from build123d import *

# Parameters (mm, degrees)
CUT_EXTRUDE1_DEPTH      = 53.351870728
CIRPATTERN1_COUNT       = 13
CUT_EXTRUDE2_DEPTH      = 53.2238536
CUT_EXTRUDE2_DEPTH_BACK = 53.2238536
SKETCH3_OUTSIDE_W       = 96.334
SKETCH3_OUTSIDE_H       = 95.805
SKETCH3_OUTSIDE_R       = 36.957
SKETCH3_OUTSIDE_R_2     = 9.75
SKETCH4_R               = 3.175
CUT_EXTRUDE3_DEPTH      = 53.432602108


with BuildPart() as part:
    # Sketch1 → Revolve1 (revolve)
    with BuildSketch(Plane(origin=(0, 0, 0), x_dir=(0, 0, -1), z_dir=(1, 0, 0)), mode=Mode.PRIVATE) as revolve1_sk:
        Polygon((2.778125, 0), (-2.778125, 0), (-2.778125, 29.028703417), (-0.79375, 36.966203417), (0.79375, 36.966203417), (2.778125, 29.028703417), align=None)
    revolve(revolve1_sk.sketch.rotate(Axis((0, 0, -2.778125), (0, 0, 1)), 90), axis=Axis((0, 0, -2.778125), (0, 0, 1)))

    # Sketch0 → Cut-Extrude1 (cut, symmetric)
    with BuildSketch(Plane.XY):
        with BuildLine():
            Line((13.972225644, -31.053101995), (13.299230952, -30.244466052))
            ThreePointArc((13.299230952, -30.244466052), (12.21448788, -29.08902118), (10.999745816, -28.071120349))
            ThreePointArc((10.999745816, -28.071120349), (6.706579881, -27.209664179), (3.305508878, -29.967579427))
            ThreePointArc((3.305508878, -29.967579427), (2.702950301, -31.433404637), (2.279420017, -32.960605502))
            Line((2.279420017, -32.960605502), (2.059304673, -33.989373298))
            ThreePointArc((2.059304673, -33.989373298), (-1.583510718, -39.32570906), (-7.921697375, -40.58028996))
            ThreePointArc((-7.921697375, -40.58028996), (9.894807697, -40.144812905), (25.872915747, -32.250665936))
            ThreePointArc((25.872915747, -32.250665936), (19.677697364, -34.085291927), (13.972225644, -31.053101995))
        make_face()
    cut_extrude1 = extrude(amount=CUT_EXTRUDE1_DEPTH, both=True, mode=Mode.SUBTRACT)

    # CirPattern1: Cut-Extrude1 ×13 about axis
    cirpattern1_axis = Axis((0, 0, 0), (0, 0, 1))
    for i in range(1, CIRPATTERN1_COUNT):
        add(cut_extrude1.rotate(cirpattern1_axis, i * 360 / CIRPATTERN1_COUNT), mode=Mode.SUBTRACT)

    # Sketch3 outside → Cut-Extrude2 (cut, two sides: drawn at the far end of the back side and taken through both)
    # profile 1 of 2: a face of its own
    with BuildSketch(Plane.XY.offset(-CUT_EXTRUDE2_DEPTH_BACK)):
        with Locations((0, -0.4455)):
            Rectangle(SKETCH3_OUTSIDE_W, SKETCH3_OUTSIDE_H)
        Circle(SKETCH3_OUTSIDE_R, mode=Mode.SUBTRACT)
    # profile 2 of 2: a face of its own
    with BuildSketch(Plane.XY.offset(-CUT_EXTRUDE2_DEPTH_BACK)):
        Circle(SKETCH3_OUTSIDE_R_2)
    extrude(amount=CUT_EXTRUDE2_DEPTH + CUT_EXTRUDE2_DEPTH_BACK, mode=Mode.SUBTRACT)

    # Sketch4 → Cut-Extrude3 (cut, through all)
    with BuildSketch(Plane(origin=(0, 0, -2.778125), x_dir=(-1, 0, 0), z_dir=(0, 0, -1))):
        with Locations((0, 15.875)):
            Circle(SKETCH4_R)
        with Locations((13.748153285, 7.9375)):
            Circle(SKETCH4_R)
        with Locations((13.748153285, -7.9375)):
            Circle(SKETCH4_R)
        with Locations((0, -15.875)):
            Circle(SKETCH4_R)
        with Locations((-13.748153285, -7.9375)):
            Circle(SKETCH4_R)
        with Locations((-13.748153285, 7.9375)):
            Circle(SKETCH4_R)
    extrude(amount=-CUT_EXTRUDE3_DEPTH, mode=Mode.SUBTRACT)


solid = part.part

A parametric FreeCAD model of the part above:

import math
import FreeCAD as App
import Part
import Sketcher
Q = App.Units.Quantity


def add_polygon(sketch, points):
    """Adds a closed chain of lines whose ends are joined by coincident constraints."""
    first, n = sketch.GeometryCount, len(points)
    for a, b in zip(points, points[1:] + points[:1]):
        sketch.addGeometry(Part.LineSegment(App.Vector(*a, 0), App.Vector(*b, 0)), False)
    for i in range(n):
        sketch.addConstraint(Sketcher.Constraint("Coincident", first + i, 2, first + (i + 1) % n, 1))

doc = App.newDocument("Part")
body = doc.addObject("PartDesign::Body", "Body")

# Sketch on YZ plane
sketch1 = body.newObject("Sketcher::SketchObject", "Sketch")
sketch1.AttachmentSupport = (doc.getObject("YZ_Plane"), [""])
sketch1.MapMode = "FlatFace"
add_polygon(sketch1, [(0, 2.8), (0, -2.8), (29, -2.8), (37, -0.8), (37, 0.8), (29, 2.8)])  # lines 0-5
sketch1.addConstraint([
    Sketcher.Constraint("Vertical", 0),
    Sketcher.Constraint("Horizontal", 1),
    Sketcher.Constraint("Vertical", 3),
    Sketcher.Constraint("Horizontal", 5),
    Sketcher.Constraint("Symmetric", 0, 2, 5, 2, -1, 1),
    Sketcher.Constraint("Vertical", 1, 2, 4, 2),
    Sketcher.Constraint("Equal", 2, 4),
    Sketcher.Constraint("DistanceY", 0, 2, 0, 1, Q("0.21875 in")),
    Sketcher.Constraint("DistanceY", 3, 1, 3, 2, Q("0.0625 in")),
    Sketcher.Constraint("DistanceX", 1, 2, 2, 2, Q("0.3125 in")),
    Sketcher.Constraint("DistanceX", 1, 1, 1, 2, Q("29.028703 mm")),
])
revolution = body.newObject("PartDesign::Revolution", "Revolution")
revolution.Profile = sketch1
revolution.ReferenceAxis = (sketch1, ["V_Axis"])
revolution.Angle = 360

# Sketch on XY plane
sketch2 = body.newObject("Sketcher::SketchObject", "Sketch001")
sketch2.AttachmentSupport = (doc.getObject("XY_Plane"), [""])
sketch2.MapMode = "FlatFace"
sketch2.addGeometry([
    Part.LineSegment(App.Vector(14, -31.1, 0), App.Vector(13.3, -30.2, 0)),  # 0
    Part.ArcOfCircle(Part.Circle(App.Vector(3.1, -38.7, 0), App.Vector(0, 0, 1), 13.3), math.radians(39.77), math.radians(53.46)),  # 1
    Part.ArcOfCircle(Part.Circle(App.Vector(7.9, -32.2, 0), App.Vector(0, 0, 1), 5.1), math.radians(53), math.radians(154)),  # 2
    Part.ArcOfCircle(Part.Circle(App.Vector(15.3, -35.7, 0), App.Vector(0, 0, 1), 13.3), math.radians(154.23), math.radians(167.92)),  # 3
    Part.LineSegment(App.Vector(2.3, -33, 0), App.Vector(2.1, -34, 0)),  # 4
    Part.ArcOfCircle(Part.Circle(App.Vector(-6.3, -32.2, 0), App.Vector(0, 0, 1), 8.5), math.radians(-101), math.radians(-12)),  # 5
    Part.ArcOfCircle(Part.Circle(App.Vector(0, 0, 0), App.Vector(0, 0, 1), 41.3), math.radians(-101), math.radians(-51)),  # 6
    Part.ArcOfCircle(Part.Circle(App.Vector(20.5, -25.6, 0), App.Vector(0, 0, 1), 8.5), math.radians(-140), math.radians(-51)),  # 7
], False)
sketch2.addConstraint([
    Sketcher.Constraint("Tangent", 0, 2, 1, 1),
    Sketcher.Constraint("Tangent", 1, 2, 2, 1),
    Sketcher.Constraint("Tangent", 2, 2, 3, 1),
    Sketcher.Constraint("Tangent", 3, 2, 4, 1),
    Sketcher.Constraint("Tangent", 4, 2, 5, 2),
    Sketcher.Constraint("Tangent", 5, 1, 6, 1),
    Sketcher.Constraint("Tangent", 6, 2, 7, 2),
    Sketcher.Constraint("Tangent", 7, 1, 0, 1),
    Sketcher.Constraint("Coincident", 6, 3, -1, 1),
    Sketcher.Constraint("Equal", 1, 3),
    Sketcher.Constraint("Equal", 5, 7),
    Sketcher.Constraint("Horizontal", 2, 3, 5, 3),
    Sketcher.Constraint("Equal", 0, 4),
    Sketcher.Constraint("Radius", 1, Q("0.5225 in")),
    Sketcher.Constraint("Radius", 2, Q("0.2025 in")),
    Sketcher.Constraint("Radius", 5, Q("8.534698 mm")),
    Sketcher.Constraint("DistanceX", 5, 3, 2, 3, Q("0.56 in")),
    Sketcher.Constraint("DistanceX", -1, 1, 2, 3, Q("0.3125 in")),
    Sketcher.Constraint("Radius", 6, Q("41.34626 mm")),
    Sketcher.Constraint("DistanceY", 2, 3, 1, 2, Q("0.1627001 in")),
    Sketcher.Constraint("DistanceY", 7, 1, -1, 1, Q("31.053102 mm")),
])
pocket1 = body.newObject("PartDesign::Pocket", "Pocket")
pocket1.Profile = sketch2
pocket1.Length = 106.703741
pocket1.Midplane = True
doc.recompute()

polarpattern = body.newObject("PartDesign::PolarPattern", "PolarPattern")
polarpattern.Originals = [pocket1]
polarpattern.Axis = (doc.getObject("Z_Axis"), [""])
polarpattern.Angle = 360
polarpattern.Occurrences = 13
body.Tip = polarpattern

# Sketch on XY plane
sketch3 = body.newObject("Sketcher::SketchObject", "Sketch002")
sketch3.AttachmentSupport = (doc.getObject("XY_Plane"), [""])
sketch3.MapMode = "FlatFace"
add_polygon(sketch3, [(-48, 47), (-48, -48), (48, -48), (48, 47)])  # lines 0-3
sketch3.addGeometry(Part.Circle(App.Vector(0, 0, 0), App.Vector(0, 0, 1), 37), False)  # 4
sketch3.addGeometry(Part.Circle(App.Vector(0, 0, 0), App.Vector(0, 0, 1), 10), False)  # 5
sketch3.addConstraint([
    Sketcher.Constraint("Vertical", 0),
    Sketcher.Constraint("Horizontal", 1),
    Sketcher.Constraint("Vertical", 2),
    Sketcher.Constraint("Horizontal", 3),
    Sketcher.Constraint("Coincident", 4, 3, -1, 1),
    Sketcher.Constraint("Coincident", 5, 3, -1, 1),
    Sketcher.Constraint("Diameter", 4, Q("2.91 in")),
    Sketcher.Constraint("Diameter", 5, Q("19.5 mm")),
    Sketcher.Constraint("DistanceX", 1, 1, 1, 2, Q("96.334 mm")),
    Sketcher.Constraint("DistanceY", 0, 2, 0, 1, Q("95.805 mm")),
    Sketcher.Constraint("DistanceX", 0, 2, -1, 1, Q("48.167 mm")),
    Sketcher.Constraint("DistanceY", 0, 2, -1, 1, Q("48.348 mm")),
])
pocket2 = body.newObject("PartDesign::Pocket", "Pocket001")
pocket2.Profile = sketch3
pocket2.Type = "ThroughAll"
pocket2.Midplane = True

# Sketch on XY plane
sketch4 = body.newObject("Sketcher::SketchObject", "Sketch003")
sketch4.AttachmentSupport = (doc.getObject("XY_Plane"), [""])
sketch4.MapMode = "FlatFace"
sketch4.AttachmentOffset = App.Placement(App.Vector(0, 0, -0.109375 * 25.4), App.Rotation())
sketch4.addGeometry([
    Part.Circle(App.Vector(0, 15.9, 0), App.Vector(0, 0, 1), 3.2),  # 0
    Part.Circle(App.Vector(-13.7, 7.9, 0), App.Vector(0, 0, 1), 3.2),  # 1
    Part.Circle(App.Vector(-13.7, -7.9, 0), App.Vector(0, 0, 1), 3.2),  # 2
    Part.Circle(App.Vector(0, -15.9, 0), App.Vector(0, 0, 1), 3.2),  # 3
    Part.Circle(App.Vector(13.7, -7.9, 0), App.Vector(0, 0, 1), 3.2),  # 4
    Part.Circle(App.Vector(13.7, 7.9, 0), App.Vector(0, 0, 1), 3.2),  # 5
], False)
sketch4.addConstraint([
    Sketcher.Constraint("Equal", 0, 1),
    Sketcher.Constraint("Equal", 1, 2),
    Sketcher.Constraint("Equal", 2, 3),
    Sketcher.Constraint("Equal", 3, 4),
    Sketcher.Constraint("Equal", 4, 5),
    Sketcher.Constraint("Symmetric", 0, 3, 3, 3, -1, 1),
    Sketcher.Constraint("Symmetric", 1, 3, 4, 3, -1, 1),
    Sketcher.Constraint("Symmetric", 2, 3, 5, 3, -1, 1),
    Sketcher.Constraint("Symmetric", 2, 3, 4, 3, -2),
    Sketcher.Constraint("PointOnObject", 0, 3, -2),
    Sketcher.Constraint("Diameter", 0, Q("0.25 in")),
    Sketcher.Constraint("DistanceY", 3, 3, 0, 3, Q("1.25 in")),
    Sketcher.Constraint("DistanceY", -1, 1, 1, 3, Q("0.3125 in")),
    Sketcher.Constraint("DistanceX", 1, 3, -1, 1, Q("13.748153 mm")),
])
pocket3 = body.newObject("PartDesign::Pocket", "Pocket002")
pocket3.Profile = sketch4
pocket3.Type = "ThroughAll"
pocket3.Reversed = True

doc.recompute()
